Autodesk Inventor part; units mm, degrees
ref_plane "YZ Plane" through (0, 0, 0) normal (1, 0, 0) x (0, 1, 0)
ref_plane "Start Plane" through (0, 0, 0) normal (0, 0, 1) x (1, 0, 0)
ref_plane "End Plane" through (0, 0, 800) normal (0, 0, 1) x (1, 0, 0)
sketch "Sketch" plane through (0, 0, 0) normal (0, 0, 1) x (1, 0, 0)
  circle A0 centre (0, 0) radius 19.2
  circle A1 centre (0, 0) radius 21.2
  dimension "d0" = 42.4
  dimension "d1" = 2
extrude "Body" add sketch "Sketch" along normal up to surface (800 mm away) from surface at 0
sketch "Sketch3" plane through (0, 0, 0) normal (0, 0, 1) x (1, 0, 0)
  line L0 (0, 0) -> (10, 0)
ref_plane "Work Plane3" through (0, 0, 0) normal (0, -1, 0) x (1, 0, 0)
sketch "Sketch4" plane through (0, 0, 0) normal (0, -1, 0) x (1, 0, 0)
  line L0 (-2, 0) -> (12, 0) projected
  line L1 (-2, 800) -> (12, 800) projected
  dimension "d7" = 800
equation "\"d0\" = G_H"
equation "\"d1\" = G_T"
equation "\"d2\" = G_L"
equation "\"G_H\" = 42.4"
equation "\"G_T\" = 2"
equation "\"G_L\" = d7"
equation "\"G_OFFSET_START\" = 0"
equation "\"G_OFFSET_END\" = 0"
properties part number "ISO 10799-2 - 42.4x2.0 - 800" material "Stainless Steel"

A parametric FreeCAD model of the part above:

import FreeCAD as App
import Part
import Sketcher

doc = App.newDocument("Part")
body = doc.addObject("PartDesign::Body", "Body")

# Sketch on XY plane
sketch1 = body.newObject("Sketcher::SketchObject", "Sketch")
sketch1.AttachmentSupport = (doc.getObject("XY_Plane"), [""])
sketch1.MapMode = "FlatFace"
sketch1.addGeometry(Part.Circle(App.Vector(0, 0, 0), App.Vector(0, 0, 1), 21), False)
sketch1.addGeometry(Part.Circle(App.Vector(0, 0, 0), App.Vector(0, 0, 1), 19), False)
sketch1.addConstraint(Sketcher.Constraint("Coincident", 0, 3, -1, 1))
sketch1.addConstraint(Sketcher.Constraint("Coincident", 1, 3, -1, 1))
sketch1.addConstraint(Sketcher.Constraint("Diameter", 0, 42.4))
sketch1.addConstraint(Sketcher.Constraint("Diameter", 1, 38.4))
pad1 = body.newObject("PartDesign::Pad", "Pad")
pad1.Profile = sketch1
pad1.Length = 800

doc.recompute()
